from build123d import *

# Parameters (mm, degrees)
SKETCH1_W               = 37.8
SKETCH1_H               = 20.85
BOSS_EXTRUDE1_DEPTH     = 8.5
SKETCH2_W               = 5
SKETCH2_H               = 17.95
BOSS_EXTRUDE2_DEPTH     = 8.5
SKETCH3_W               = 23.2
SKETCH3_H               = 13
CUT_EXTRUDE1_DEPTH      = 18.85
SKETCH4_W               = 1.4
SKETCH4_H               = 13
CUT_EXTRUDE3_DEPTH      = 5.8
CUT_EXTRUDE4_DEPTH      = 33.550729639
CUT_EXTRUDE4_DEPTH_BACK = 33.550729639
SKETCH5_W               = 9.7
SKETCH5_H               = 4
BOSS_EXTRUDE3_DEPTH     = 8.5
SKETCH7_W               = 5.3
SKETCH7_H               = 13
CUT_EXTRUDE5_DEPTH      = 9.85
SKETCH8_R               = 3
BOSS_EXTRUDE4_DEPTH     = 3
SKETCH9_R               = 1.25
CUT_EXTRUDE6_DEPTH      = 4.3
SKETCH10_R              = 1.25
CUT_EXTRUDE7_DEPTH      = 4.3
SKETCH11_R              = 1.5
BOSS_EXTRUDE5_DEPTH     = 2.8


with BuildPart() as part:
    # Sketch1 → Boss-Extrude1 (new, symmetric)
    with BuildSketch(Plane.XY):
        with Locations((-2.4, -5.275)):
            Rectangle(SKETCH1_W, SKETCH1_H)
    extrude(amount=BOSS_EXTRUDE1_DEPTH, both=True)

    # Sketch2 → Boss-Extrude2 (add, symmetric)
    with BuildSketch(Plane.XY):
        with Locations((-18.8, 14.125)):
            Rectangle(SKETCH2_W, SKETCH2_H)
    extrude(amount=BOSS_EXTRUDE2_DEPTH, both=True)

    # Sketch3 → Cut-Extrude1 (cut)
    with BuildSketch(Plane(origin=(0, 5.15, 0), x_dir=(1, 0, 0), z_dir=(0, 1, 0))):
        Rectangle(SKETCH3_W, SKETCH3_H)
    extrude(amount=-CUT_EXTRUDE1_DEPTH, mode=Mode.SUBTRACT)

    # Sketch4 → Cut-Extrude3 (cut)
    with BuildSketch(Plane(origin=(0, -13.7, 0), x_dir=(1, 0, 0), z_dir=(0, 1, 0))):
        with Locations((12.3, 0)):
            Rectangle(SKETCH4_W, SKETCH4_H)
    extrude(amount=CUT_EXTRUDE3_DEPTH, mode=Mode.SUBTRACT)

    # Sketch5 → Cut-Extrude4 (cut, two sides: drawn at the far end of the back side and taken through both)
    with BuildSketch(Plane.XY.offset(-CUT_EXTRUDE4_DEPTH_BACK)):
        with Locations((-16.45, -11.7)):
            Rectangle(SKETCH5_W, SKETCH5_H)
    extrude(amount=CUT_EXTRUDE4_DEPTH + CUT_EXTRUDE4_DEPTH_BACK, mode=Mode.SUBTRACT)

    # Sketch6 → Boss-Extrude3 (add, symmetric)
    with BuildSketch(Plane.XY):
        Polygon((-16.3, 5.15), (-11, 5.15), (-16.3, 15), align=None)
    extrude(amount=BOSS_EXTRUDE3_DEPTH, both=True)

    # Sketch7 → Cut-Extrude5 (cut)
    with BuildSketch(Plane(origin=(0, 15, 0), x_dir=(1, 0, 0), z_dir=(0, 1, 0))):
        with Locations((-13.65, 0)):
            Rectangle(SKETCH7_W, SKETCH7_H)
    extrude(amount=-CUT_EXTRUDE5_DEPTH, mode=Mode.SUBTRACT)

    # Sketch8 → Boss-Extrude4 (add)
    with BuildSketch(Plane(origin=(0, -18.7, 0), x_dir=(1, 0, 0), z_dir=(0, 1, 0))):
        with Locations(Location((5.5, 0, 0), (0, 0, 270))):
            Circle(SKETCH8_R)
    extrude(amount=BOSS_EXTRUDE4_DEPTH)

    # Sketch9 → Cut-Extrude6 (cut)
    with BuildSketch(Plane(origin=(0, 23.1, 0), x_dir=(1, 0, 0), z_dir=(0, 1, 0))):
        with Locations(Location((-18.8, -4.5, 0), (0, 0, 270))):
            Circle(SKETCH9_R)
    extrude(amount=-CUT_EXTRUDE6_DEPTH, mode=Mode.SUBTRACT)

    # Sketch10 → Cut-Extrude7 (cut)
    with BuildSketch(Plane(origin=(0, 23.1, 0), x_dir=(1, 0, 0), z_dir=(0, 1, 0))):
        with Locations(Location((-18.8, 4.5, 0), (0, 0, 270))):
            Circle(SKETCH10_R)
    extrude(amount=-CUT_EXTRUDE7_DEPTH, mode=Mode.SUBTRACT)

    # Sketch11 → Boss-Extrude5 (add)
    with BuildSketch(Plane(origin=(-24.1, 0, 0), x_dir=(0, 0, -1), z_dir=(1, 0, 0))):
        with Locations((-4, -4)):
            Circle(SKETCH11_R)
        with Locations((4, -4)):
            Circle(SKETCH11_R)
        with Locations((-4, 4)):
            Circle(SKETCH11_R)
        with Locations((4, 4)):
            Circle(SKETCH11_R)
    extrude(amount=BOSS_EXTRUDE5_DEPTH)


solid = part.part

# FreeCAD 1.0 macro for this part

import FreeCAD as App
import Part
import Sketcher
Q = App.Units.Quantity

doc = App.newDocument("Part")
params = doc.addObject("Spreadsheet::Sheet", "Params")
for row, (alias, value) in enumerate([
    ("sketch1_width", "37.8 mm"),
    ("sketch1_height", "20.85 mm"),
    ("pad1_length", "17 mm"),
    ("sketch2_width", "5 mm"),
    ("sketch2_height", "17.95 mm"),
    ("pad2_length", "17 mm"),
    ("sketch3_height", "13 mm"),
    ("sketch3_width", "23.2 mm"),
    ("pocket1_length", "18.85 mm"),
    ("sketch4_height", "13 mm"),
    ("sketch4_width", "1.4 mm"),
    ("pocket2_length", "5.8 mm"),
    ("sketch5_height", "4 mm"),
    ("sketch5_width", "9.7 mm"),
    ("sketch6_width", "5.3 mm"),
    ("sketch6_height", "9.85 mm"),
    ("pad3_length", "17 mm"),
    ("sketch7_height", "13 mm"),
    ("sketch7_width", "5.3 mm"),
    ("pocket4_length", "9.85 mm"),
    ("sketch8_diameter", "6 mm"),
    ("pad4_length", "3 mm"),
    ("sketch9_diameter", "2.5 mm"),
    ("pocket5_length", "4.3 mm"),
    ("sketch10_diameter", "2.5 mm"),
    ("pocket6_length", "4.3 mm"),
    ("sketch11_diameter", "3 mm"),
    ("pad5_length", "2.8 mm"),
], start=1):
    params.set(f"A{row}", alias)
    params.set(f"B{row}", "=" + value)
    params.setAlias(f"B{row}", alias)

body = doc.addObject("PartDesign::Body", "Body")

# Sketch on XY plane
sketch1 = body.newObject("Sketcher::SketchObject", "Sketch")
sketch1.AttachmentSupport = (doc.getObject("XY_Plane"), [""])
sketch1.MapMode = "FlatFace"
sketch1.addGeometry(Part.LineSegment(App.Vector(-21.3, 5.15, 0), App.Vector(-21.3, -15.7, 0)), False)
sketch1.addGeometry(Part.LineSegment(App.Vector(-21.3, -15.7, 0), App.Vector(16.5, -15.7, 0)), False)
sketch1.addGeometry(Part.LineSegment(App.Vector(16.5, -15.7, 0), App.Vector(16.5, 5.15, 0)), False)
sketch1.addGeometry(Part.LineSegment(App.Vector(16.5, 5.15, 0), App.Vector(-21.3, 5.15, 0)), False)
sketch1.addConstraint(Sketcher.Constraint("Coincident", 0, 2, 1, 1))
sketch1.addConstraint(Sketcher.Constraint("Coincident", 1, 2, 2, 1))
sketch1.addConstraint(Sketcher.Constraint("Coincident", 2, 2, 3, 1))
sketch1.addConstraint(Sketcher.Constraint("Coincident", 3, 2, 0, 1))
sketch1.addConstraint(Sketcher.Constraint("Vertical", 0))
sketch1.addConstraint(Sketcher.Constraint("Horizontal", 1))
sketch1.addConstraint(Sketcher.Constraint("Vertical", 2))
sketch1.addConstraint(Sketcher.Constraint("Horizontal", 3))
sketch1.addConstraint(Sketcher.Constraint("DistanceX", 1, 1, 1, 2, Q("37.8 mm")))
sketch1.addConstraint(Sketcher.Constraint("DistanceY", 0, 2, 0, 1, Q("20.85 mm")))
sketch1.addConstraint(Sketcher.Constraint("DistanceX", 0, 2, -1, 1, Q("21.3 mm")))
sketch1.addConstraint(Sketcher.Constraint("DistanceY", 0, 2, -1, 1, Q("15.7 mm")))
sketch1.setExpression("Constraints[8]", "Params.sketch1_width")
sketch1.setExpression("Constraints[9]", "Params.sketch1_height")
pad1 = body.newObject("PartDesign::Pad", "Pad")
pad1.Profile = sketch1
pad1.setExpression("Length", "Params.pad1_length")
pad1.Midplane = True

# Sketch on XY plane
sketch2 = body.newObject("Sketcher::SketchObject", "Sketch001")
sketch2.AttachmentSupport = (doc.getObject("XY_Plane"), [""])
sketch2.MapMode = "FlatFace"
sketch2.addGeometry(Part.LineSegment(App.Vector(-21.3, 23.1, 0), App.Vector(-21.3, 5.15, 0)), False)
sketch2.addGeometry(Part.LineSegment(App.Vector(-21.3, 5.15, 0), App.Vector(-16.3, 5.15, 0)), False)
sketch2.addGeometry(Part.LineSegment(App.Vector(-16.3, 5.15, 0), App.Vector(-16.3, 23.1, 0)), False)
sketch2.addGeometry(Part.LineSegment(App.Vector(-16.3, 23.1, 0), App.Vector(-21.3, 23.1, 0)), False)
sketch2.addConstraint(Sketcher.Constraint("Coincident", 0, 2, 1, 1))
sketch2.addConstraint(Sketcher.Constraint("Coincident", 1, 2, 2, 1))
sketch2.addConstraint(Sketcher.Constraint("Coincident", 2, 2, 3, 1))
sketch2.addConstraint(Sketcher.Constraint("Coincident", 3, 2, 0, 1))
sketch2.addConstraint(Sketcher.Constraint("Vertical", 0))
sketch2.addConstraint(Sketcher.Constraint("Horizontal", 1))
sketch2.addConstraint(Sketcher.Constraint("Vertical", 2))
sketch2.addConstraint(Sketcher.Constraint("Horizontal", 3))
sketch2.addConstraint(Sketcher.Constraint("DistanceX", 1, 1, 1, 2, Q("5 mm")))
sketch2.addConstraint(Sketcher.Constraint("DistanceY", 0, 2, 0, 1, Q("17.95 mm")))
sketch2.addConstraint(Sketcher.Constraint("DistanceX", 0, 2, -1, 1, Q("21.3 mm")))
sketch2.addConstraint(Sketcher.Constraint("DistanceY", -1, 1, 2, 2, Q("23.1 mm")))
sketch2.setExpression("Constraints[8]", "Params.sketch2_width")
sketch2.setExpression("Constraints[9]", "Params.sketch2_height")
pad2 = body.newObject("PartDesign::Pad", "Pad001")
pad2.Profile = sketch2
pad2.setExpression("Length", "Params.pad2_length")
pad2.Midplane = True

# Sketch on XZ plane
sketch3 = body.newObject("Sketcher::SketchObject", "Sketch002")
sketch3.AttachmentSupport = (doc.getObject("XZ_Plane"), [""])
sketch3.MapMode = "FlatFace"
sketch3.AttachmentOffset = App.Placement(App.Vector(0, 0, -5.15), App.Rotation())
sketch3.addGeometry(Part.LineSegment(App.Vector(-11.6, -6.5, 0), App.Vector(-11.6, 6.5, 0)), False)
sketch3.addGeometry(Part.LineSegment(App.Vector(-11.6, 6.5, 0), App.Vector(11.6, 6.5, 0)), False)
sketch3.addGeometry(Part.LineSegment(App.Vector(11.6, 6.5, 0), App.Vector(11.6, -6.5, 0)), False)
sketch3.addGeometry(Part.LineSegment(App.Vector(11.6, -6.5, 0), App.Vector(-11.6, -6.5, 0)), False)
sketch3.addConstraint(Sketcher.Constraint("Coincident", 0, 2, 1, 1))
sketch3.addConstraint(Sketcher.Constraint("Coincident", 1, 2, 2, 1))
sketch3.addConstraint(Sketcher.Constraint("Coincident", 2, 2, 3, 1))
sketch3.addConstraint(Sketcher.Constraint("Coincident", 3, 2, 0, 1))
sketch3.addConstraint(Sketcher.Constraint("Vertical", 0))
sketch3.addConstraint(Sketcher.Constraint("Horizontal", 1))
sketch3.addConstraint(Sketcher.Constraint("Vertical", 2))
sketch3.addConstraint(Sketcher.Constraint("Horizontal", 3))
sketch3.addConstraint(Sketcher.Constraint("Symmetric", 0, 2, 2, 2, -1, 1))
sketch3.addConstraint(Sketcher.Constraint("DistanceY", 0, 1, 0, 2, Q("13 mm")))
sketch3.addConstraint(Sketcher.Constraint("DistanceX", 1, 1, 1, 2, Q("23.2 mm")))
sketch3.setExpression("Constraints[9]", "Params.sketch3_height")
sketch3.setExpression("Constraints[10]", "Params.sketch3_width")
pocket1 = body.newObject("PartDesign::Pocket", "Pocket")
pocket1.Profile = sketch3
pocket1.setExpression("Length", "Params.pocket1_length")
pocket1.Reversed = True

# Sketch on XZ plane
sketch4 = body.newObject("Sketcher::SketchObject", "Sketch003")
sketch4.AttachmentSupport = (doc.getObject("XZ_Plane"), [""])
sketch4.MapMode = "FlatFace"
sketch4.AttachmentOffset = App.Placement(App.Vector(0, 0, 13.7), App.Rotation())
sketch4.addGeometry(Part.LineSegment(App.Vector(11.6, -6.5, 0), App.Vector(11.6, 6.5, 0)), False)
sketch4.addGeometry(Part.LineSegment(App.Vector(11.6, 6.5, 0), App.Vector(13, 6.5, 0)), False)
sketch4.addGeometry(Part.LineSegment(App.Vector(13, 6.5, 0), App.Vector(13, -6.5, 0)), False)
sketch4.addGeometry(Part.LineSegment(App.Vector(13, -6.5, 0), App.Vector(11.6, -6.5, 0)), False)
sketch4.addConstraint(Sketcher.Constraint("Coincident", 0, 2, 1, 1))
sketch4.addConstraint(Sketcher.Constraint("Coincident", 1, 2, 2, 1))
sketch4.addConstraint(Sketcher.Constraint("Coincident", 2, 2, 3, 1))
sketch4.addConstraint(Sketcher.Constraint("Coincident", 3, 2, 0, 1))
sketch4.addConstraint(Sketcher.Constraint("Vertical", 0))
sketch4.addConstraint(Sketcher.Constraint("Horizontal", 1))
sketch4.addConstraint(Sketcher.Constraint("Vertical", 2))
sketch4.addConstraint(Sketcher.Constraint("Horizontal", 3))
sketch4.addConstraint(Sketcher.Constraint("DistanceY", 0, 1, 0, 2, Q("13 mm")))
sketch4.addConstraint(Sketcher.Constraint("DistanceX", 1, 1, 1, 2, Q("1.4 mm")))
sketch4.addConstraint(Sketcher.Constraint("DistanceX", -1, 1, 1, 2, Q("13 mm")))
sketch4.addConstraint(Sketcher.Constraint("DistanceY", -1, 1, 0, 2, Q("6.5 mm")))
sketch4.setExpression("Constraints[8]", "Params.sketch4_height")
sketch4.setExpression("Constraints[9]", "Params.sketch4_width")
pocket2 = body.newObject("PartDesign::Pocket", "Pocket001")
pocket2.Profile = sketch4
pocket2.setExpression("Length", "Params.pocket2_length")

# Sketch on XY plane
sketch5 = body.newObject("Sketcher::SketchObject", "Sketch004")
sketch5.AttachmentSupport = (doc.getObject("XY_Plane"), [""])
sketch5.MapMode = "FlatFace"
sketch5.addGeometry(Part.LineSegment(App.Vector(-21.3, -9.7, 0), App.Vector(-21.3, -13.7, 0)), False)
sketch5.addGeometry(Part.LineSegment(App.Vector(-21.3, -13.7, 0), App.Vector(-11.6, -13.7, 0)), False)
sketch5.addGeometry(Part.LineSegment(App.Vector(-11.6, -13.7, 0), App.Vector(-11.6, -9.7, 0)), False)
sketch5.addGeometry(Part.LineSegment(App.Vector(-11.6, -9.7, 0), App.Vector(-21.3, -9.7, 0)), False)
sketch5.addConstraint(Sketcher.Constraint("Coincident", 0, 2, 1, 1))
sketch5.addConstraint(Sketcher.Constraint("Coincident", 1, 2, 2, 1))
sketch5.addConstraint(Sketcher.Constraint("Coincident", 2, 2, 3, 1))
sketch5.addConstraint(Sketcher.Constraint("Coincident", 3, 2, 0, 1))
sketch5.addConstraint(Sketcher.Constraint("Vertical", 0))
sketch5.addConstraint(Sketcher.Constraint("Horizontal", 1))
sketch5.addConstraint(Sketcher.Constraint("Vertical", 2))
sketch5.addConstraint(Sketcher.Constraint("Horizontal", 3))
sketch5.addConstraint(Sketcher.Constraint("DistanceY", 0, 2, 0, 1, Q("4 mm")))
sketch5.addConstraint(Sketcher.Constraint("DistanceX", 1, 1, 1, 2, Q("9.7 mm")))
sketch5.addConstraint(Sketcher.Constraint("DistanceX", 0, 2, -1, 1, Q("21.3 mm")))
sketch5.addConstraint(Sketcher.Constraint("DistanceY", 0, 2, -1, 1, Q("13.7 mm")))
sketch5.setExpression("Constraints[8]", "Params.sketch5_height")
sketch5.setExpression("Constraints[9]", "Params.sketch5_width")
pocket3 = body.newObject("PartDesign::Pocket", "Pocket002")
pocket3.Profile = sketch5
pocket3.Type = "ThroughAll"
pocket3.Midplane = True

# Sketch on XY plane
sketch6 = body.newObject("Sketcher::SketchObject", "Sketch005")
sketch6.AttachmentSupport = (doc.getObject("XY_Plane"), [""])
sketch6.MapMode = "FlatFace"
sketch6.addGeometry(Part.LineSegment(App.Vector(-16.3, 5.15, 0), App.Vector(-11, 5.15, 0)), False)
sketch6.addGeometry(Part.LineSegment(App.Vector(-11, 5.15, 0), App.Vector(-16.3, 15, 0)), False)
sketch6.addGeometry(Part.LineSegment(App.Vector(-16.3, 15, 0), App.Vector(-16.3, 5.15, 0)), False)
sketch6.addConstraint(Sketcher.Constraint("Coincident", 0, 2, 1, 1))
sketch6.addConstraint(Sketcher.Constraint("Coincident", 1, 2, 2, 1))
sketch6.addConstraint(Sketcher.Constraint("Coincident", 2, 2, 0, 1))
sketch6.addConstraint(Sketcher.Constraint("Horizontal", 0))
sketch6.addConstraint(Sketcher.Constraint("Vertical", 2))
sketch6.addConstraint(Sketcher.Constraint("DistanceX", 0, 1, 0, 2, Q("5.3 mm")))
sketch6.addConstraint(Sketcher.Constraint("DistanceX", 0, 2, -1, 1, Q("11 mm")))
sketch6.addConstraint(Sketcher.Constraint("DistanceY", -1, 1, 1, 2, Q("15 mm")))
sketch6.addConstraint(Sketcher.Constraint("DistanceY", 2, 2, 2, 1, Q("9.85 mm")))
sketch6.setExpression("Constraints[5]", "Params.sketch6_width")
sketch6.setExpression("Constraints[8]", "Params.sketch6_height")
pad3 = body.newObject("PartDesign::Pad", "Pad002")
pad3.Profile = sketch6
pad3.setExpression("Length", "Params.pad3_length")
pad3.Midplane = True

# Sketch on XZ plane
sketch7 = body.newObject("Sketcher::SketchObject", "Sketch006")
sketch7.AttachmentSupport = (doc.getObject("XZ_Plane"), [""])
sketch7.MapMode = "FlatFace"
sketch7.AttachmentOffset = App.Placement(App.Vector(0, 0, -15), App.Rotation())
sketch7.addGeometry(Part.LineSegment(App.Vector(-16.3, -6.5, 0), App.Vector(-16.3, 6.5, 0)), False)
sketch7.addGeometry(Part.LineSegment(App.Vector(-16.3, 6.5, 0), App.Vector(-11, 6.5, 0)), False)
sketch7.addGeometry(Part.LineSegment(App.Vector(-11, 6.5, 0), App.Vector(-11, -6.5, 0)), False)
sketch7.addGeometry(Part.LineSegment(App.Vector(-11, -6.5, 0), App.Vector(-16.3, -6.5, 0)), False)
sketch7.addConstraint(Sketcher.Constraint("Coincident", 0, 2, 1, 1))
sketch7.addConstraint(Sketcher.Constraint("Coincident", 1, 2, 2, 1))
sketch7.addConstraint(Sketcher.Constraint("Coincident", 2, 2, 3, 1))
sketch7.addConstraint(Sketcher.Constraint("Coincident", 3, 2, 0, 1))
sketch7.addConstraint(Sketcher.Constraint("Vertical", 0))
sketch7.addConstraint(Sketcher.Constraint("Horizontal", 1))
sketch7.addConstraint(Sketcher.Constraint("Vertical", 2))
sketch7.addConstraint(Sketcher.Constraint("Horizontal", 3))
sketch7.addConstraint(Sketcher.Constraint("DistanceY", 0, 1, 0, 2, Q("13 mm")))
sketch7.addConstraint(Sketcher.Constraint("DistanceX", 1, 1, 1, 2, Q("5.3 mm")))
sketch7.addConstraint(Sketcher.Constraint("DistanceX", 1, 2, -1, 1, Q("11 mm")))
sketch7.addConstraint(Sketcher.Constraint("DistanceY", -1, 1, 0, 2, Q("6.5 mm")))
sketch7.setExpression("Constraints[8]", "Params.sketch7_height")
sketch7.setExpression("Constraints[9]", "Params.sketch7_width")
pocket4 = body.newObject("PartDesign::Pocket", "Pocket003")
pocket4.Profile = sketch7
pocket4.setExpression("Length", "Params.pocket4_length")
pocket4.Reversed = True

# Sketch on XZ plane
sketch8 = body.newObject("Sketcher::SketchObject", "Sketch007")
sketch8.AttachmentSupport = (doc.getObject("XZ_Plane"), [""])
sketch8.MapMode = "FlatFace"
sketch8.AttachmentOffset = App.Placement(App.Vector(0, 0, 18.7), App.Rotation())
sketch8.addGeometry(Part.Circle(App.Vector(5.5, 0, 0), App.Vector(0, 0, 1), 3), False)
sketch8.addConstraint(Sketcher.Constraint("PointOnObject", 0, 3, -1))
sketch8.addConstraint(Sketcher.Constraint("Diameter", 0, Q("6 mm")))
sketch8.addConstraint(Sketcher.Constraint("DistanceX", -1, 1, 0, 3, Q("5.5 mm")))
sketch8.setExpression("Constraints[1]", "Params.sketch8_diameter")
pad4 = body.newObject("PartDesign::Pad", "Pad003")
pad4.Profile = sketch8
pad4.setExpression("Length", "Params.pad4_length")
pad4.Reversed = True

# Sketch on XZ plane
sketch9 = body.newObject("Sketcher::SketchObject", "Sketch008")
sketch9.AttachmentSupport = (doc.getObject("XZ_Plane"), [""])
sketch9.MapMode = "FlatFace"
sketch9.AttachmentOffset = App.Placement(App.Vector(0, 0, -23.1), App.Rotation())
sketch9.addGeometry(Part.Circle(App.Vector(-18.8, 4.5, 0), App.Vector(0, 0, 1), 1.25), False)
sketch9.addConstraint(Sketcher.Constraint("Diameter", 0, Q("2.5 mm")))
sketch9.addConstraint(Sketcher.Constraint("DistanceX", 0, 3, -1, 1, Q("18.8 mm")))
sketch9.addConstraint(Sketcher.Constraint("DistanceY", -1, 1, 0, 3, Q("4.5 mm")))
sketch9.setExpression("Constraints[0]", "Params.sketch9_diameter")
pocket5 = body.newObject("PartDesign::Pocket", "Pocket004")
pocket5.Profile = sketch9
pocket5.setExpression("Length", "Params.pocket5_length")
pocket5.Reversed = True

# Sketch on XZ plane
sketch10 = body.newObject("Sketcher::SketchObject", "Sketch009")
sketch10.AttachmentSupport = (doc.getObject("XZ_Plane"), [""])
sketch10.MapMode = "FlatFace"
sketch10.AttachmentOffset = App.Placement(App.Vector(0, 0, -23.1), App.Rotation())
sketch10.addGeometry(Part.Circle(App.Vector(-18.8, -4.5, 0), App.Vector(0, 0, 1), 1.25), False)
sketch10.addConstraint(Sketcher.Constraint("Diameter", 0, Q("2.5 mm")))
sketch10.addConstraint(Sketcher.Constraint("DistanceX", 0, 3, -1, 1, Q("18.8 mm")))
sketch10.addConstraint(Sketcher.Constraint("DistanceY", 0, 3, -1, 1, Q("4.5 mm")))
sketch10.setExpression("Constraints[0]", "Params.sketch10_diameter")
pocket6 = body.newObject("PartDesign::Pocket", "Pocket005")
pocket6.Profile = sketch10
pocket6.setExpression("Length", "Params.pocket6_length")
pocket6.Reversed = True

# Sketch on YZ plane
sketch11 = body.newObject("Sketcher::SketchObject", "Sketch010")
sketch11.AttachmentSupport = (doc.getObject("YZ_Plane"), [""])
sketch11.MapMode = "FlatFace"
sketch11.AttachmentOffset = App.Placement(App.Vector(0, 0, -24.1), App.Rotation())
sketch11.addGeometry(Part.Circle(App.Vector(-4, 4, 0), App.Vector(0, 0, 1), 1.5), False)
sketch11.addGeometry(Part.Circle(App.Vector(-4, -4, 0), App.Vector(0, 0, 1), 1.5), False)
sketch11.addGeometry(Part.Circle(App.Vector(4, 4, 0), App.Vector(0, 0, 1), 1.5), False)
sketch11.addGeometry(Part.Circle(App.Vector(4, -4, 0), App.Vector(0, 0, 1), 1.5), False)
sketch11.addConstraint(Sketcher.Constraint("Equal", 0, 1))
sketch11.addConstraint(Sketcher.Constraint("Equal", 1, 2))
sketch11.addConstraint(Sketcher.Constraint("Equal", 2, 3))
sketch11.addConstraint(Sketcher.Constraint("Symmetric", 1, 3, 2, 3, -1, 1))
sketch11.addConstraint(Sketcher.Constraint("Symmetric", 0, 3, 3, 3, -1, 1))
sketch11.addConstraint(Sketcher.Constraint("Symmetric", 0, 3, 2, 3, -2))
sketch11.addConstraint(Sketcher.Constraint("Diameter", 0, Q("3 mm")))
sketch11.addConstraint(Sketcher.Constraint("DistanceX", 0, 3, -1, 1, Q("4 mm")))
sketch11.addConstraint(Sketcher.Constraint("DistanceY", -1, 1, 0, 3, Q("4 mm")))
sketch11.setExpression("Constraints[6]", "Params.sketch11_diameter")
pad5 = body.newObject("PartDesign::Pad", "Pad004")
pad5.Profile = sketch11
pad5.setExpression("Length", "Params.pad5_length")

doc.recompute()
